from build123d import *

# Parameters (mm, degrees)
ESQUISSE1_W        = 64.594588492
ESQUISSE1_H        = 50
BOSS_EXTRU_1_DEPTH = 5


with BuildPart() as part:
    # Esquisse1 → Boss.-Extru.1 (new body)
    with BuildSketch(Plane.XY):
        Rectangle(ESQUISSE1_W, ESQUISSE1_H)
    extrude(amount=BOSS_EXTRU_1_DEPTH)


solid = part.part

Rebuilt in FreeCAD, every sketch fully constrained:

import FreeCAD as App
import Part
import Sketcher


def add_polygon(sketch, points):
    """Adds a closed chain of lines whose ends are joined by coincident constraints."""
    first, n = sketch.GeometryCount, len(points)
    for a, b in zip(points, points[1:] + points[:1]):
        sketch.addGeometry(Part.LineSegment(App.Vector(*a, 0), App.Vector(*b, 0)), False)
    for i in range(n):
        sketch.addConstraint(Sketcher.Constraint("Coincident", first + i, 2, first + (i + 1) % n, 1))

doc = App.newDocument("Part")
body = doc.addObject("PartDesign::Body", "Body")

sketch1 = body.newObject("Sketcher::SketchObject", "Sketch")
sketch1.AttachmentSupport = (doc.getObject("XY_Plane"), [""])
sketch1.MapMode = "FlatFace"
add_polygon(sketch1, [(-32, 25), (-32, -25), (32, -25), (32, 25)])
sketch1.addConstraint(Sketcher.Constraint("Vertical", 0))
sketch1.addConstraint(Sketcher.Constraint("Horizontal", 1))
sketch1.addConstraint(Sketcher.Constraint("Vertical", 2))
sketch1.addConstraint(Sketcher.Constraint("Horizontal", 3))
sketch1.addConstraint(Sketcher.Constraint("Symmetric", 0, 2, 2, 2, -1, 1))
sketch1.addConstraint(Sketcher.Constraint("DistanceY", 0, 2, 0, 1, 50.0))
sketch1.addConstraint(Sketcher.Constraint("DistanceX", 1, 1, 1, 2, 64.594588))
pad1 = body.newObject("PartDesign::Pad", "Pad")
pad1.Profile = sketch1
pad1.Length = 5

doc.recompute()
